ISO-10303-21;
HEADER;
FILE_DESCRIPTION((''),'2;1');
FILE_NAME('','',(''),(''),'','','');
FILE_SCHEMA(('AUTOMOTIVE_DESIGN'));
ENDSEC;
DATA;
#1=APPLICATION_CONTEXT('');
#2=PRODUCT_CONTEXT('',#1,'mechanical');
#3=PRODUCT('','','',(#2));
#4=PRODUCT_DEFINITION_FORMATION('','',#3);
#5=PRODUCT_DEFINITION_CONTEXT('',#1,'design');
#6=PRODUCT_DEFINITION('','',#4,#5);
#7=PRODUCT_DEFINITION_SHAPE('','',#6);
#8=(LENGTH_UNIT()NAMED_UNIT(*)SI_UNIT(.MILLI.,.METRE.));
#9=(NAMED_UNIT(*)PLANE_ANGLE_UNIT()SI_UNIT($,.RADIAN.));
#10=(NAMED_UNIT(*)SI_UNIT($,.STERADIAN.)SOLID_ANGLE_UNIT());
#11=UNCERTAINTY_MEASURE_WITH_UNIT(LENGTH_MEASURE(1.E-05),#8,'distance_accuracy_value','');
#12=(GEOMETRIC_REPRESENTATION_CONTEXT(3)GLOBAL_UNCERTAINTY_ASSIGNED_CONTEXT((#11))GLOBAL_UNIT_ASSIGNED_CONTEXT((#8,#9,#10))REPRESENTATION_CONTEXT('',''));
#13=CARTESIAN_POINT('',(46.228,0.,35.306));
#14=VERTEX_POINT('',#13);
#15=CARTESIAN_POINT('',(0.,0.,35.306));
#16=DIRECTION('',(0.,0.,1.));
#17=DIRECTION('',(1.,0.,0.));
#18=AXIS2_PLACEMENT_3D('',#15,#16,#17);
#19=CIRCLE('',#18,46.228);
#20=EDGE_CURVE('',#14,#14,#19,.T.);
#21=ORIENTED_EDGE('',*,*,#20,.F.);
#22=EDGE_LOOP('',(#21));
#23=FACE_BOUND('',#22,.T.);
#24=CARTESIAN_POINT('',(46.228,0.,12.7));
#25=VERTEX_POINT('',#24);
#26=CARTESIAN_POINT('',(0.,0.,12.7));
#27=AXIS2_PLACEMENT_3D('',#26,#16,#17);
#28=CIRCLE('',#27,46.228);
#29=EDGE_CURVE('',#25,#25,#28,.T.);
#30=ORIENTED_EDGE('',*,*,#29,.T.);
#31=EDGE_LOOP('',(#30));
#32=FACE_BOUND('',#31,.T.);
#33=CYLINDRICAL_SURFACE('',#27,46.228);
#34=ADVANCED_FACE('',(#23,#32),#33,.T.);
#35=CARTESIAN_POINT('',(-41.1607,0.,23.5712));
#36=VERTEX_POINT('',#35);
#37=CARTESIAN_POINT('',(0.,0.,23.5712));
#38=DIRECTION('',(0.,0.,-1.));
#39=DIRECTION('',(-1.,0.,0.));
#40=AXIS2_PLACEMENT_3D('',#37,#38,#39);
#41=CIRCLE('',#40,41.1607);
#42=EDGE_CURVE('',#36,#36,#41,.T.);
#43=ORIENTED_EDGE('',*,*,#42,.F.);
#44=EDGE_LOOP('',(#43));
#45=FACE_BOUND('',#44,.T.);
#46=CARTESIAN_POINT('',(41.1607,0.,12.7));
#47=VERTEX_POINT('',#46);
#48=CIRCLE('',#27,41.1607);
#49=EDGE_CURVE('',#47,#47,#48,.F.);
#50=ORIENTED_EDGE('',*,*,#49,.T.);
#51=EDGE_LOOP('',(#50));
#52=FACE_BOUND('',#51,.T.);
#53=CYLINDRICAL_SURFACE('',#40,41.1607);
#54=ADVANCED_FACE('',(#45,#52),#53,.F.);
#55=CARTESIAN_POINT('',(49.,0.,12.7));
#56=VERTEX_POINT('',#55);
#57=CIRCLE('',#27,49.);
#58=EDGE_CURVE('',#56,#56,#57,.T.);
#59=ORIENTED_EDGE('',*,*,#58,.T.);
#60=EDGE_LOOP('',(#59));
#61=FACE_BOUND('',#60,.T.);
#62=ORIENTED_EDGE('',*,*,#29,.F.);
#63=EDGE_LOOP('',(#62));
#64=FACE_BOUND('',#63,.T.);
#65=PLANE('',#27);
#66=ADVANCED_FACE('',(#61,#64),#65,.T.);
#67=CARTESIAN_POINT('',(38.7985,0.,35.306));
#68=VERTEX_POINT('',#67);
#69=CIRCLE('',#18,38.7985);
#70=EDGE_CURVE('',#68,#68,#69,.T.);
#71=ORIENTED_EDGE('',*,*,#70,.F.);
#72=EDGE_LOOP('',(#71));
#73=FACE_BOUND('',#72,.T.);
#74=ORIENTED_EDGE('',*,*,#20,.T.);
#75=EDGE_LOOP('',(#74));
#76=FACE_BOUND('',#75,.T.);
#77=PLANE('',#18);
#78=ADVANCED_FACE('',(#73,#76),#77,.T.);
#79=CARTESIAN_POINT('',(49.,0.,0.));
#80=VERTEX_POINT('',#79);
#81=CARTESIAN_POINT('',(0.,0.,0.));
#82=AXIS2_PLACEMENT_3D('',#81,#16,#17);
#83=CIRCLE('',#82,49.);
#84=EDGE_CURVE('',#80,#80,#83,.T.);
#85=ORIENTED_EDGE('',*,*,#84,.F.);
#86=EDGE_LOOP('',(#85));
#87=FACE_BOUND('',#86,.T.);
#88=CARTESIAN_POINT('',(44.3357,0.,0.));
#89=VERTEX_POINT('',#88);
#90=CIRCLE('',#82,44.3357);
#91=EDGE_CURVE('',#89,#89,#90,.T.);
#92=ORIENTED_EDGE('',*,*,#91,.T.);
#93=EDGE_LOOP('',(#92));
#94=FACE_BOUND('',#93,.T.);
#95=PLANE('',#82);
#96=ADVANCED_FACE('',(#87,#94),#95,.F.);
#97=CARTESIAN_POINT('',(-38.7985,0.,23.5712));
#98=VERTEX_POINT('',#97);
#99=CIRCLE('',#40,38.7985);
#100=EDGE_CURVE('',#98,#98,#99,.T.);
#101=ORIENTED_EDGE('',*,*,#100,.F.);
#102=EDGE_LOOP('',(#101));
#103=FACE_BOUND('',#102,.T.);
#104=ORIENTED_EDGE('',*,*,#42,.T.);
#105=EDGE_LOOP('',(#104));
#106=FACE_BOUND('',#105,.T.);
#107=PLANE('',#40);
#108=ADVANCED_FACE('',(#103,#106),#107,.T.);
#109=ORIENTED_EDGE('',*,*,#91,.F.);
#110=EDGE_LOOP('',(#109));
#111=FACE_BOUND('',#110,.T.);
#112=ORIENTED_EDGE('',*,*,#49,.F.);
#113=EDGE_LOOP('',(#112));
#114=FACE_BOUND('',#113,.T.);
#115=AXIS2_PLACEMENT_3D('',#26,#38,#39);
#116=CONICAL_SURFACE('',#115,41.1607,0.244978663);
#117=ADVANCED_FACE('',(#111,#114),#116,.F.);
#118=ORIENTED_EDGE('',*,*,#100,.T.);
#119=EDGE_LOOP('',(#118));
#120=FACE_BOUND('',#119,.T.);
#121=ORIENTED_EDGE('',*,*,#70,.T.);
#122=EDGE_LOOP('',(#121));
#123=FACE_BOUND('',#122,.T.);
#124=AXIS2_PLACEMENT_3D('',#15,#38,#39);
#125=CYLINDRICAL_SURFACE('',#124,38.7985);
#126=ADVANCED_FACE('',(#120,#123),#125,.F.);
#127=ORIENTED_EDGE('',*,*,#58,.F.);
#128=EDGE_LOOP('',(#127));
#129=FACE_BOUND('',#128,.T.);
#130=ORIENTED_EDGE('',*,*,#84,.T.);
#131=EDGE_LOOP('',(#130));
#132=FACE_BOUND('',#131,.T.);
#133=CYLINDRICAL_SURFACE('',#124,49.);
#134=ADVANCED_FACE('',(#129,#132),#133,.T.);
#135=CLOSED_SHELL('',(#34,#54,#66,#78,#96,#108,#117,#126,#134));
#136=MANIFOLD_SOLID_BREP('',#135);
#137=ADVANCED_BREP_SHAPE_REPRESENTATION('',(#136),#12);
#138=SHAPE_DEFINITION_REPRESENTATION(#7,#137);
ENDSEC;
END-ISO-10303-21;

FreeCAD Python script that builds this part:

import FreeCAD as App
import Part
import Sketcher
Q = App.Units.Quantity


def edges_at(feature, points):
    """Names of the edges that pass closest to the given points."""
    edges = feature.Shape.Edges
    near = lambda p: min(range(len(edges)), key=lambda i: edges[i].distToShape(Part.Vertex(*p))[0])
    return sorted({f"Edge{near(p) + 1}" for p in points})


def add_polygon(sketch, points):
    """Adds a closed chain of lines whose ends are joined by coincident constraints."""
    first, n = sketch.GeometryCount, len(points)
    for a, b in zip(points, points[1:] + points[:1]):
        sketch.addGeometry(Part.LineSegment(App.Vector(*a, 0), App.Vector(*b, 0)), False)
    for i in range(n):
        sketch.addConstraint(Sketcher.Constraint("Coincident", first + i, 2, first + (i + 1) % n, 1))

doc = App.newDocument("Part")
body = doc.addObject("PartDesign::Body", "Body")

# Sketch on XY plane
sketch1 = doc.addObject("Sketcher::SketchObject", "Sketch")
body.addObject(sketch1)
sketch1.AttachmentSupport = (doc.XY_Plane, [""])
sketch1.MapMode = "FlatFace"
sketch1.addGeometry(Part.Circle(App.Vector(0, 0, 0), App.Vector(0, 0, 1), 49), False)
sketch1.addGeometry(Part.Circle(App.Vector(0, 0, 0), App.Vector(0, 0, 1), 38.7985), False)
sketch1.addConstraint(Sketcher.Constraint("Coincident", 0, 3, -1, 1))
sketch1.addConstraint(Sketcher.Constraint("Coincident", 1, 3, -1, 1))
sketch1.addConstraint(Sketcher.Constraint("Diameter", 1, Q("3.055 in")))
sketch1.addConstraint(Sketcher.Constraint("Diameter", 0, Q("98 mm")))
pad1 = doc.addObject("PartDesign::Pad", "Pad")
body.addObject(pad1)
pad1.Profile = sketch1
pad1.Length = Q("1.39 in")

# Sketch on XY plane
sketch2 = doc.addObject("Sketcher::SketchObject", "Sketch001")
body.addObject(sketch2)
sketch2.AttachmentSupport = (doc.XY_Plane, [""])
sketch2.MapMode = "FlatFace"
sketch2.AttachmentOffset = App.Placement(App.Vector(0, 0, 1.39 * 25.4), App.Rotation())
add_polygon(sketch2, [(-64.302, 64.302), (-64.302, -64.302), (64.302, -64.302), (64.302, 64.302)])  # lines 0-3
sketch2.addGeometry(Part.Circle(App.Vector(0, 0, 0), App.Vector(0, 0, 1), 46.228), False)  # 4
sketch2.addConstraint(Sketcher.Constraint("Vertical", 0))
sketch2.addConstraint(Sketcher.Constraint("Horizontal", 1))
sketch2.addConstraint(Sketcher.Constraint("Vertical", 2))
sketch2.addConstraint(Sketcher.Constraint("Horizontal", 3))
sketch2.addConstraint(Sketcher.Constraint("Coincident", 4, 3, -1, 1))
sketch2.addConstraint(Sketcher.Constraint("Symmetric", 0, 2, 2, 2, -1, 1))
sketch2.addConstraint(Sketcher.Constraint("Equal", 3, 0))
sketch2.addConstraint(Sketcher.Constraint("Diameter", 4, Q("3.64 in")))
sketch2.addConstraint(Sketcher.Constraint("DistanceX", 1, 1, 1, 2, Q("128.604 mm")))
pocket1 = doc.addObject("PartDesign::Pocket", "Pocket")
body.addObject(pocket1)
pocket1.Profile = sketch2
pocket1.Length = Q("0.89 in")

# Sketch on XY plane
sketch3 = doc.addObject("Sketcher::SketchObject", "Sketch002")
body.addObject(sketch3)
sketch3.AttachmentSupport = (doc.XY_Plane, [""])
sketch3.MapMode = "FlatFace"
sketch3.addGeometry(Part.Circle(App.Vector(0, 0, 0), App.Vector(0, 0, 1), 41.1607), False)
sketch3.addConstraint(Sketcher.Constraint("Coincident", 0, 3, -1, 1))
sketch3.addConstraint(Sketcher.Constraint("Diameter", 0, Q("3.241 in")))
pocket2 = doc.addObject("PartDesign::Pocket", "Pocket001")
body.addObject(pocket2)
pocket2.Profile = sketch3
pocket2.Length = Q("0.928 in")
pocket2.Reversed = True
doc.recompute()

chamfer = doc.addObject("PartDesign::Chamfer", "Chamfer")
body.addObject(chamfer)
chamfer.Base = (pocket2, edges_at(pocket2, [(41.161, 0, 0)]))
chamfer.ChamferType = "Two distances"
chamfer.Size = Q("0.125 in")
chamfer.Size2 = Q("0.5 in")

doc.recompute()
